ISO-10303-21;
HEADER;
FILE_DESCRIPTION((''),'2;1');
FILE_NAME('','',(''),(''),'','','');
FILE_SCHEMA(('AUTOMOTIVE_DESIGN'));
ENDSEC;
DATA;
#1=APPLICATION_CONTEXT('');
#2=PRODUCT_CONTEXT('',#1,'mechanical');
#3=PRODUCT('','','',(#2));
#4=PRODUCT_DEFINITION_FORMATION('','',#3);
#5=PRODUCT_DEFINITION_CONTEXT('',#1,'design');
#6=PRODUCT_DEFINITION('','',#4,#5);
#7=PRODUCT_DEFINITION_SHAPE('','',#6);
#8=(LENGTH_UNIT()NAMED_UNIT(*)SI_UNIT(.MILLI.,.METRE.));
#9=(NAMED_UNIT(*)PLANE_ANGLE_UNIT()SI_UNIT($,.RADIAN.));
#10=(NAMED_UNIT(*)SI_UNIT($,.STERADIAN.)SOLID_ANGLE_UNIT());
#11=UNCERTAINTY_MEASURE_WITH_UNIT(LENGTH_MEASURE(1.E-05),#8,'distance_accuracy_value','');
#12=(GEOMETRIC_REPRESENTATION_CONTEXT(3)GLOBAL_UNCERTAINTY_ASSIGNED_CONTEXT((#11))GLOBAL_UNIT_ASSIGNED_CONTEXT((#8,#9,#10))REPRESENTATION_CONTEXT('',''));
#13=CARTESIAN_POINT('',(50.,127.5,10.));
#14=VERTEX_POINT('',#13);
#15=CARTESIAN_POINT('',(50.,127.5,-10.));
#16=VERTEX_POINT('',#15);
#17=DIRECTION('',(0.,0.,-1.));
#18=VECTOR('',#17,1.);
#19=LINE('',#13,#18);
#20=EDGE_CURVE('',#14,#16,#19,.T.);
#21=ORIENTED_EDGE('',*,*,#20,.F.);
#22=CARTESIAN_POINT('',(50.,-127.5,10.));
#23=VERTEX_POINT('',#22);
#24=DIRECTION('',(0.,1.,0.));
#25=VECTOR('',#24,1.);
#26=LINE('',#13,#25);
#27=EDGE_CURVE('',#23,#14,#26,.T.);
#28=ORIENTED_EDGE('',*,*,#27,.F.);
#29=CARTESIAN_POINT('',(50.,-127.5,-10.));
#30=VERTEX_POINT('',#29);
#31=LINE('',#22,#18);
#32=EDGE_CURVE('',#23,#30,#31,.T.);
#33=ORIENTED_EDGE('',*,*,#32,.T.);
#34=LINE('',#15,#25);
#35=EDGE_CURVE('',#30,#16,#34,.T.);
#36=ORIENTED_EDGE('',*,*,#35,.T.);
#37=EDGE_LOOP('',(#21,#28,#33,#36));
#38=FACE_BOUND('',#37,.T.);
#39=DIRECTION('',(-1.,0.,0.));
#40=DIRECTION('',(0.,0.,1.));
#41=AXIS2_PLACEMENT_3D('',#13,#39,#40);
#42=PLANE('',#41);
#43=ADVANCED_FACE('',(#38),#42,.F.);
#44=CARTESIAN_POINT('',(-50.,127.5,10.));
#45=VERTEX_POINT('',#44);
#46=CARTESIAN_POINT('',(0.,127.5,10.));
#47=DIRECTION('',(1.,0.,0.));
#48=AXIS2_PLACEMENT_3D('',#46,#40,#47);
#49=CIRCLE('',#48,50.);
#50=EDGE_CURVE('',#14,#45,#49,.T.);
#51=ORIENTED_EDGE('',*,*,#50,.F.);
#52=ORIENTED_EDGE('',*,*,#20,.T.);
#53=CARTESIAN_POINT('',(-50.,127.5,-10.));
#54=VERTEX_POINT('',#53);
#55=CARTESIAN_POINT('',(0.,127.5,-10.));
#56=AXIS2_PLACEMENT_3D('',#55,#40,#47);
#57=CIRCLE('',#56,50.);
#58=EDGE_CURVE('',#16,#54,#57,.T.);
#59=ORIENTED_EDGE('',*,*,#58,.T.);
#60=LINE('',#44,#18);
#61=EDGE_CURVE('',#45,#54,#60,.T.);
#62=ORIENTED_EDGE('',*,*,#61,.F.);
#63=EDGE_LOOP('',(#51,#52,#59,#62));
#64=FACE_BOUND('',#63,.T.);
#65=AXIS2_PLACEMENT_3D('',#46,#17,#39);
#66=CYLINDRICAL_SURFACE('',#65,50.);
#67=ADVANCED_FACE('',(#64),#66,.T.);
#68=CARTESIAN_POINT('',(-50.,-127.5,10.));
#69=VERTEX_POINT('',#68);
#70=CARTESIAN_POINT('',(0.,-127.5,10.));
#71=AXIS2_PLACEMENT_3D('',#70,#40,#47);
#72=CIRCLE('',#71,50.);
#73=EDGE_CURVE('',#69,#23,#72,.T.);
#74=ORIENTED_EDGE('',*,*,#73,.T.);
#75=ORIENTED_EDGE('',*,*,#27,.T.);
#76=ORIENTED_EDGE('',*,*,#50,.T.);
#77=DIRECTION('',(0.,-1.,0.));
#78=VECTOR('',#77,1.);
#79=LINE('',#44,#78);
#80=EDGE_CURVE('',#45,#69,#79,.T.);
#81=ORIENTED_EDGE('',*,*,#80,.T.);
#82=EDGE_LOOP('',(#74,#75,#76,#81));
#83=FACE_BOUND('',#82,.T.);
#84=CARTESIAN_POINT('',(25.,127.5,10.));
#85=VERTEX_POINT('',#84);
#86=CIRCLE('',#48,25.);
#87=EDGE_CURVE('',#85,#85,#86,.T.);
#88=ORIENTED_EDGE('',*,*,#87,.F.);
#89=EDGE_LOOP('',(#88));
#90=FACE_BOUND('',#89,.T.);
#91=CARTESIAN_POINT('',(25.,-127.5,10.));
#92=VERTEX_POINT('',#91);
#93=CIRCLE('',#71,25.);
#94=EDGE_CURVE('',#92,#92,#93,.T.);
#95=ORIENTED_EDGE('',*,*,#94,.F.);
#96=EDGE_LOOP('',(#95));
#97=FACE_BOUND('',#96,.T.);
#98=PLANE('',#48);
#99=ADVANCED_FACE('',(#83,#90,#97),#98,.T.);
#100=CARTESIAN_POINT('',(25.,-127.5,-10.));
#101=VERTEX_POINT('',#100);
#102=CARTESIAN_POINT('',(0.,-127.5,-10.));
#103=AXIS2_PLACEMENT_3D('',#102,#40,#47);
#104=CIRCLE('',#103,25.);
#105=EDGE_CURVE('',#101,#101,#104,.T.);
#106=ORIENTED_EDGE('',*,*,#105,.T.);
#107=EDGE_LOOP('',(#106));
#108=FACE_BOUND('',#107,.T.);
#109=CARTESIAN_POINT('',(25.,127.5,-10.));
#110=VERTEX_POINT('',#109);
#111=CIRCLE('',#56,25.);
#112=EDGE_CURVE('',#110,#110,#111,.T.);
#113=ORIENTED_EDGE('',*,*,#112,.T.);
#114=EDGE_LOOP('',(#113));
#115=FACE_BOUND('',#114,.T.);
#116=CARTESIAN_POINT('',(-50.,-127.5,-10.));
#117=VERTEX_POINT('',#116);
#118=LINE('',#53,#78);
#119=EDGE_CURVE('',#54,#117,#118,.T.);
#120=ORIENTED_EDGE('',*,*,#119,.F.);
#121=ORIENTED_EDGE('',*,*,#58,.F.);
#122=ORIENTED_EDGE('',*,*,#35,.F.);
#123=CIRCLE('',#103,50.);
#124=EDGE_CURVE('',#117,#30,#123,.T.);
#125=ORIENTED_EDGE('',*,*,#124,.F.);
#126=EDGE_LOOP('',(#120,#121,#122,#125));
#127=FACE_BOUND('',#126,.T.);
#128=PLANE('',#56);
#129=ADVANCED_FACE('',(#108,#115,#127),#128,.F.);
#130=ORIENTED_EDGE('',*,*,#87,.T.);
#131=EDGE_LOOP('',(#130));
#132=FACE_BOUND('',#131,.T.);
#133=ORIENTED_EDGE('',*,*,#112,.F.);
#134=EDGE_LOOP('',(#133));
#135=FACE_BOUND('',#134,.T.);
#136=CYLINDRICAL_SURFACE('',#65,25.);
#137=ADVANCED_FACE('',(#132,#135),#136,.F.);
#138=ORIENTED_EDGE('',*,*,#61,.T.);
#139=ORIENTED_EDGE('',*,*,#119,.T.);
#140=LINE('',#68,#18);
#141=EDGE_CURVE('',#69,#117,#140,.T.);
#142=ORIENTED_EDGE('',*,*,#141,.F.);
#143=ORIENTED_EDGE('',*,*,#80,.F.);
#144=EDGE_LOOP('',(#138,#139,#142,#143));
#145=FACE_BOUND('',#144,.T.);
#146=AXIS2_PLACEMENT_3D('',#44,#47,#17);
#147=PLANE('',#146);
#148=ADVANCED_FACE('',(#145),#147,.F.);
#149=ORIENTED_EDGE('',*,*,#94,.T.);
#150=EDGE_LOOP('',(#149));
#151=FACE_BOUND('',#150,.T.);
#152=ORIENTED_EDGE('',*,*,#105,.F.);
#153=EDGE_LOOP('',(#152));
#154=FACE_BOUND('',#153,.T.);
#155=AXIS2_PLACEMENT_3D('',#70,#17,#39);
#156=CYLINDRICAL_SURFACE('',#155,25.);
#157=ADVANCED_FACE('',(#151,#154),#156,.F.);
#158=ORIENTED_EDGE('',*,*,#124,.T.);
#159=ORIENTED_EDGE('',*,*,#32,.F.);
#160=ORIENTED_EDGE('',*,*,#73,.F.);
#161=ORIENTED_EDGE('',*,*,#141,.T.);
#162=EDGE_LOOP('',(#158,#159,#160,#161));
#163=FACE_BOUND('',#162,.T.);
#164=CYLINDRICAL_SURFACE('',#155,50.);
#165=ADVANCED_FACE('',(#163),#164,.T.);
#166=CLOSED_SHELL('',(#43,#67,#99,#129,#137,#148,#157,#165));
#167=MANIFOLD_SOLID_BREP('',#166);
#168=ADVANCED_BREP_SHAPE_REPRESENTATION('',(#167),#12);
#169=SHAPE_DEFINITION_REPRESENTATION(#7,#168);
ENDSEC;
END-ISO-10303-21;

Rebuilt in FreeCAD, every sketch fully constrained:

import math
import FreeCAD as App
import Part
import Sketcher

doc = App.newDocument("Part")
body = doc.addObject("PartDesign::Body", "Body")

sketch1 = body.newObject("Sketcher::SketchObject", "Sketch")
sketch1.AttachmentSupport = (doc.getObject("XY_Plane"), [""])
sketch1.MapMode = "FlatFace"
sketch1.addGeometry(Part.LineSegment(App.Vector(-50, 128, 0), App.Vector(-50, -128, 0)), False)
sketch1.addGeometry(Part.ArcOfCircle(Part.Circle(App.Vector(0, -128, 0), App.Vector(0, 0, 1), 50), math.radians(180), math.radians(360)), False)
sketch1.addGeometry(Part.LineSegment(App.Vector(50, -128, 0), App.Vector(50, 128, 0)), False)
sketch1.addGeometry(Part.ArcOfCircle(Part.Circle(App.Vector(0, 128, 0), App.Vector(0, 0, 1), 50), math.radians(0), math.radians(180)), False)
sketch1.addGeometry(Part.Circle(App.Vector(0, -128, 0), App.Vector(0, 0, 1), 25), False)
sketch1.addGeometry(Part.Circle(App.Vector(0, 128, 0), App.Vector(0, 0, 1), 25), False)
sketch1.addConstraint(Sketcher.Constraint("Tangent", 0, 2, 1, 1))
sketch1.addConstraint(Sketcher.Constraint("Tangent", 1, 2, 2, 1))
sketch1.addConstraint(Sketcher.Constraint("Tangent", 2, 2, 3, 1))
sketch1.addConstraint(Sketcher.Constraint("Tangent", 3, 2, 0, 1))
sketch1.addConstraint(Sketcher.Constraint("Vertical", 0))
sketch1.addConstraint(Sketcher.Constraint("Vertical", 2))
sketch1.addConstraint(Sketcher.Constraint("Coincident", 4, 3, 1, 3))
sketch1.addConstraint(Sketcher.Constraint("Coincident", 5, 3, 3, 3))
sketch1.addConstraint(Sketcher.Constraint("Equal", 4, 5))
sketch1.addConstraint(Sketcher.Constraint("Symmetric", 1, 3, 3, 3, -1, 1))
sketch1.addConstraint(Sketcher.Constraint("Diameter", 4, 50.0))
sketch1.addConstraint(Sketcher.Constraint("Radius", 1, 50.0))
sketch1.addConstraint(Sketcher.Constraint("DistanceY", 0, 2, 0, 1, 255.0))
pad1 = body.newObject("PartDesign::Pad", "Pad")
pad1.Profile = sketch1
pad1.Length = 20
pad1.Midplane = True

doc.recompute()
